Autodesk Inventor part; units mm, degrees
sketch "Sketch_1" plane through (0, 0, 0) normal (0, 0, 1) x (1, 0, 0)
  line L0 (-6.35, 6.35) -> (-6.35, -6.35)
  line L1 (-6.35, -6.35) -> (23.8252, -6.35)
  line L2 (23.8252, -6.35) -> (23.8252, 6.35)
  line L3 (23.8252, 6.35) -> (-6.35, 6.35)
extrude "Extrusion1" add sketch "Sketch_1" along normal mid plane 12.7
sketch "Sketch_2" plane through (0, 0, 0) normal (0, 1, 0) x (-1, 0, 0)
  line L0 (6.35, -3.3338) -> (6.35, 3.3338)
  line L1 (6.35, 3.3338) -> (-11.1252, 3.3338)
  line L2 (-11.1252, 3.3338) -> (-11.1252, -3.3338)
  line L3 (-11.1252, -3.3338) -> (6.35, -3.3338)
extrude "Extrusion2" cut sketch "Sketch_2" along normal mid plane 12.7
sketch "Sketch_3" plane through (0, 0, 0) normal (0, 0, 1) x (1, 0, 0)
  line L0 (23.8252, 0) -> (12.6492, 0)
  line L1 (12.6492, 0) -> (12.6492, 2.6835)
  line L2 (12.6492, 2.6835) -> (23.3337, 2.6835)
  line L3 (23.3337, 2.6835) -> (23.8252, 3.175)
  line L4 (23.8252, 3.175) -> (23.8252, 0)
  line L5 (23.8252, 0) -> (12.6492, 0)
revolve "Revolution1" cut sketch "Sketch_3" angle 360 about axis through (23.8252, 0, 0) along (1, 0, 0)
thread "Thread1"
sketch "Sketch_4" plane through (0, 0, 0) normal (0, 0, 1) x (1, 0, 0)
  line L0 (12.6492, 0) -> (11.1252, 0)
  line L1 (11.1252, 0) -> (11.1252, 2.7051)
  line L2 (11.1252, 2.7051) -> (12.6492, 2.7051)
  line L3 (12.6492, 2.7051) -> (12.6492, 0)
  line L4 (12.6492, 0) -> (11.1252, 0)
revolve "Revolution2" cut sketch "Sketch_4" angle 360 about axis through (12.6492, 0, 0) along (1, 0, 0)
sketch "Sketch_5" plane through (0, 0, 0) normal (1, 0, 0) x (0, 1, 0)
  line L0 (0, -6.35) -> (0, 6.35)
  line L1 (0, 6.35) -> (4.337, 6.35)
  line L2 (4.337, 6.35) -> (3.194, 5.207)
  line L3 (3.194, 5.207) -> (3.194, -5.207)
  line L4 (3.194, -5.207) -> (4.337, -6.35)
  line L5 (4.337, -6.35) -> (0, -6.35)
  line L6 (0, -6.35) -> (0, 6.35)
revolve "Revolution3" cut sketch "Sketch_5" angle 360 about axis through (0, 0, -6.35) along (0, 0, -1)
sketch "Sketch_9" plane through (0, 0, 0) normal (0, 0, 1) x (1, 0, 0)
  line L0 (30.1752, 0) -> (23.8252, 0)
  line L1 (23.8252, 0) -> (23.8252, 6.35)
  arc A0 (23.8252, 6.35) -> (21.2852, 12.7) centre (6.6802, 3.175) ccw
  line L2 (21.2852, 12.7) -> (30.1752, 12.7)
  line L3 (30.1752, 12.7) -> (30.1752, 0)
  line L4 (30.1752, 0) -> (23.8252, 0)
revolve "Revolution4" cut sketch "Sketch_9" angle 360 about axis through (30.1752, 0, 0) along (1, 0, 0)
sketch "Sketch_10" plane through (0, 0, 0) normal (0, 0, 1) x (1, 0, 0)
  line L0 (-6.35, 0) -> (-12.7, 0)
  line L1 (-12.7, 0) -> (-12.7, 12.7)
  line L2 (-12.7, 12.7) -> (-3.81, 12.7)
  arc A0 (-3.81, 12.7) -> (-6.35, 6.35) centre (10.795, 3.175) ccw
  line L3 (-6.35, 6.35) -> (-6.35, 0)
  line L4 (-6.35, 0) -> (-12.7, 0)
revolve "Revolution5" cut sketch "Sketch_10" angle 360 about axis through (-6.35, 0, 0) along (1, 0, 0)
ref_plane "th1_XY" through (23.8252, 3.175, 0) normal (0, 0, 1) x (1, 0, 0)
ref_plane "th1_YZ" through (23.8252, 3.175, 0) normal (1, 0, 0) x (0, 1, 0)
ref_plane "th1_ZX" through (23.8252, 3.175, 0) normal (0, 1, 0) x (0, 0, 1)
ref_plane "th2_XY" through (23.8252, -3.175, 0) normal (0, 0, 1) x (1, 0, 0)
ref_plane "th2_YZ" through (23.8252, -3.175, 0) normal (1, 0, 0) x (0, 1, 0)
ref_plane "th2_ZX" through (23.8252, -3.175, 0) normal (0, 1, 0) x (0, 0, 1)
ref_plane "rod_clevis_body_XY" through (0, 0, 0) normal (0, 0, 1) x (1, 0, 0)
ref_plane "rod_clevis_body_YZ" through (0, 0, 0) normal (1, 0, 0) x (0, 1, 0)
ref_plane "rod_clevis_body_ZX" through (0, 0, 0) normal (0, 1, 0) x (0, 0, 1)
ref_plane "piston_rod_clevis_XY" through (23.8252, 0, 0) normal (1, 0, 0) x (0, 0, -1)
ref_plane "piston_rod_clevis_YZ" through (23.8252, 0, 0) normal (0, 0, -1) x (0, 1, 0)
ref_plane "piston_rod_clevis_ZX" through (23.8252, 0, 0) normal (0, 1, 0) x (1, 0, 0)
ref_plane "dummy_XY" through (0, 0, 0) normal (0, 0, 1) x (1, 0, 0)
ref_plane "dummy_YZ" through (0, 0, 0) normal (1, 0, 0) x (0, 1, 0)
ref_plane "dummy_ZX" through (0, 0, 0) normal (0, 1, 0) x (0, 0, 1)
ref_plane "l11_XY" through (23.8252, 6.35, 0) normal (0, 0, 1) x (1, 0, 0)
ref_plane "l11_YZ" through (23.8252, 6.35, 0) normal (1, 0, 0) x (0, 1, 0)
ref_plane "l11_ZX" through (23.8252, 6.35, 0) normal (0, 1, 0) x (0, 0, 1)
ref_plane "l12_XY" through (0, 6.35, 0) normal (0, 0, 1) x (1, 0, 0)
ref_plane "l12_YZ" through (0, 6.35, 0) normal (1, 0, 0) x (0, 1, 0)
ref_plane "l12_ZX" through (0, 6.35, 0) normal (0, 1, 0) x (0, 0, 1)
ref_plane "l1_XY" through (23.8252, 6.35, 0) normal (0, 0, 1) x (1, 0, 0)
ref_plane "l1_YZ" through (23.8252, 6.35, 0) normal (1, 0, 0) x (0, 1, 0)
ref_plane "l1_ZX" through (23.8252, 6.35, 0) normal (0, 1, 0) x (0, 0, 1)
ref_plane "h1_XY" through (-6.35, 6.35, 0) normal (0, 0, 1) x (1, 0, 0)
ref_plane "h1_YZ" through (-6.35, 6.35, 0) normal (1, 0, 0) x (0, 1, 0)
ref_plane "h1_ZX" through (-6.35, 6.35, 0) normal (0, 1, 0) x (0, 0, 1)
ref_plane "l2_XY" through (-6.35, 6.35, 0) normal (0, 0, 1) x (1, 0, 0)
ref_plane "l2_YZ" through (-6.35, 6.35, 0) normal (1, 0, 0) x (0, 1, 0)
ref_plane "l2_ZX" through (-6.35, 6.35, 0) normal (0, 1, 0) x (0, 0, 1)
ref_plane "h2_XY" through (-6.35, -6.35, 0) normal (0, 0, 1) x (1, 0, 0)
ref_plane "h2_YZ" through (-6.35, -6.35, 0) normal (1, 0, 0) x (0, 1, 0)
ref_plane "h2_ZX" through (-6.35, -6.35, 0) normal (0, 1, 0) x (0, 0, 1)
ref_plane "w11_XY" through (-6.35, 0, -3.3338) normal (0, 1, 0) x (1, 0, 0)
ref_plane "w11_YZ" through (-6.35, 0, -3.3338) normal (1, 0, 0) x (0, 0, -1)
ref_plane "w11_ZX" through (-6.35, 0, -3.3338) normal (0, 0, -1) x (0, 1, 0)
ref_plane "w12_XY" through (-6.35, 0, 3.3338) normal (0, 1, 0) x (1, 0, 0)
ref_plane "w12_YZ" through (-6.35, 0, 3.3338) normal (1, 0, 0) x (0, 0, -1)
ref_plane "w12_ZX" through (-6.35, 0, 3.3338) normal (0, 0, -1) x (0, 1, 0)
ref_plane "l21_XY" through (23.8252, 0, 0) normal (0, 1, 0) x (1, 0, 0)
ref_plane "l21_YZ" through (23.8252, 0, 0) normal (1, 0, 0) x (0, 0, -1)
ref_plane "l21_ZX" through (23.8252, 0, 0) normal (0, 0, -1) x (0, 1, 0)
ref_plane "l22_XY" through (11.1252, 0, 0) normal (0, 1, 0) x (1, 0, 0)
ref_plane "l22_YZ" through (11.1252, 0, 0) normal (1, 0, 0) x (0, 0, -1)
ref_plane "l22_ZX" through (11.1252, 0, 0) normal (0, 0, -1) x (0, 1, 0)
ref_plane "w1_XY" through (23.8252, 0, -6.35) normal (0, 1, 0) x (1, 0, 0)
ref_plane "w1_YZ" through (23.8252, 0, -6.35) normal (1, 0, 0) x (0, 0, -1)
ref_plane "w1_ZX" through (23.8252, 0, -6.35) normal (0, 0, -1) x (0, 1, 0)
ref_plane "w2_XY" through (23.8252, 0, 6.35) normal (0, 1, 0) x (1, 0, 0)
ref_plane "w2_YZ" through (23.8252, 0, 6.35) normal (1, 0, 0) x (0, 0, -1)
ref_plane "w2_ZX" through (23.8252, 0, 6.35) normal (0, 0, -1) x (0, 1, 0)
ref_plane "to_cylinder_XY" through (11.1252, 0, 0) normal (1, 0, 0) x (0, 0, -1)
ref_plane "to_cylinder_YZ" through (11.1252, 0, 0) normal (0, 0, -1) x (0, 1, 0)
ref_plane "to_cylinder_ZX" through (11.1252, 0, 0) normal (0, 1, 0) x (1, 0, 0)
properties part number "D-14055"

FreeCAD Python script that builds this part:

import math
import FreeCAD as App
import Part
import Sketcher

V = App.Vector
Q = App.Units.Quantity


def add_polygon(sketch, points):
    """Adds a closed chain of lines whose ends are joined by coincident constraints."""
    first, n = sketch.GeometryCount, len(points)
    for a, b in zip(points, points[1:] + points[:1]):
        sketch.addGeometry(Part.LineSegment(App.Vector(*a, 0), App.Vector(*b, 0)), False)
    for i in range(n):
        sketch.addConstraint(Sketcher.Constraint("Coincident", first + i, 2, first + (i + 1) % n, 1))

doc = App.newDocument("Part")
body = doc.addObject("PartDesign::Body", "Body")

sketch1 = doc.addObject("Sketcher::SketchObject", "Sketch")
body.addObject(sketch1)
sketch1.AttachmentSupport = (doc.XY_Plane, [""])
sketch1.MapMode = "FlatFace"
add_polygon(sketch1, [(24, 6), (-6, 6), (-6, -6), (24, -6)])
sketch1.addConstraint(Sketcher.Constraint("Horizontal", 0))
sketch1.addConstraint(Sketcher.Constraint("Vertical", 1))
sketch1.addConstraint(Sketcher.Constraint("Horizontal", 2))
sketch1.addConstraint(Sketcher.Constraint("Vertical", 3))
sketch1.addConstraint(Sketcher.Constraint("DistanceY", 1, 2, 1, 1, Q("0.5 in")))
sketch1.addConstraint(Sketcher.Constraint("DistanceX", 0, 2, 0, 1, Q("1.188 in")))
sketch1.addConstraint(Sketcher.Constraint("DistanceX", 0, 2, -1, 1, Q("0.25 in")))
sketch1.addConstraint(Sketcher.Constraint("DistanceY", -1, 1, 0, 2, Q("0.25 in")))
pad1 = doc.addObject("PartDesign::Pad", "Pad")
body.addObject(pad1)
pad1.Profile = sketch1
pad1.Length = Q("0.5 in")
pad1.Midplane = True

sketch2 = doc.addObject("Sketcher::SketchObject", "Sketch001")
body.addObject(sketch2)
sketch2.AttachmentSupport = (doc.XZ_Plane, [""])
sketch2.MapMode = "FlatFace"
add_polygon(sketch2, [(11, -3), (-6, -3), (-6, 3), (11, 3)])
sketch2.addConstraint(Sketcher.Constraint("Horizontal", 0))
sketch2.addConstraint(Sketcher.Constraint("Vertical", 1))
sketch2.addConstraint(Sketcher.Constraint("Horizontal", 2))
sketch2.addConstraint(Sketcher.Constraint("Vertical", 3))
sketch2.addConstraint(Sketcher.Constraint("DistanceX", 0, 2, 0, 1, Q("0.688 in")))
sketch2.addConstraint(Sketcher.Constraint("DistanceX", 0, 2, -1, 1, Q("0.25 in")))
sketch2.addConstraint(Sketcher.Constraint("DistanceY", 1, 1, 1, 2, Q("0.2625 in")))
sketch2.addConstraint(Sketcher.Constraint("DistanceY", 0, 2, -1, 1, Q("3.3338 mm")))
pocket1 = doc.addObject("PartDesign::Pocket", "Pocket")
body.addObject(pocket1)
pocket1.Profile = sketch2
pocket1.Length = Q("0.5 in")
pocket1.Midplane = True

sketch3 = doc.addObject("Sketcher::SketchObject", "Sketch002")
body.addObject(sketch3)
sketch3.AttachmentSupport = (doc.XY_Plane, [""])
sketch3.MapMode = "FlatFace"
add_polygon(sketch3, [(12.6, 0), (23.8, 0), (23.8, 3.2), (23.3, 2.7), (12.6, 2.7)])
sketch3.addConstraint(Sketcher.Constraint("Horizontal", 0))
sketch3.addConstraint(Sketcher.Constraint("Vertical", 1))
sketch3.addConstraint(Sketcher.Constraint("Horizontal", 3))
sketch3.addConstraint(Sketcher.Constraint("Vertical", 4))
sketch3.addConstraint(Sketcher.Constraint("PointOnObject", 0, 2, -1))
sketch3.addConstraint(Sketcher.Constraint("Angle", 2, Q("-135 deg")))
sketch3.addConstraint(Sketcher.Constraint("DistanceX", 0, 1, 0, 2, Q("0.44 in")))
sketch3.addConstraint(Sketcher.Constraint("DistanceY", 1, 1, 1, 2, Q("0.125 in")))
sketch3.addConstraint(Sketcher.Constraint("DistanceX", -1, 1, 0, 2, Q("0.938 in")))
sketch3.addConstraint(Sketcher.Constraint("DistanceX", 3, 2, 3, 1, Q("10.6845 mm")))
groove = doc.addObject("PartDesign::Groove", "Groove")
body.addObject(groove)
groove.Profile = sketch3
groove.ReferenceAxis = (sketch3, ["H_Axis"])
groove.Angle = 360

sketch4 = doc.addObject("Sketcher::SketchObject", "Sketch003")
body.addObject(sketch4)
sketch4.AttachmentSupport = (doc.XY_Plane, [""])
sketch4.MapMode = "FlatFace"
add_polygon(sketch4, [(11.1, 0), (12.6, 0), (12.6, 2.7), (11.1, 2.7)])
sketch4.addConstraint(Sketcher.Constraint("Horizontal", 0))
sketch4.addConstraint(Sketcher.Constraint("Vertical", 1))
sketch4.addConstraint(Sketcher.Constraint("Horizontal", 2))
sketch4.addConstraint(Sketcher.Constraint("Vertical", 3))
sketch4.addConstraint(Sketcher.Constraint("PointOnObject", 0, 2, -1))
sketch4.addConstraint(Sketcher.Constraint("DistanceX", 0, 1, 0, 2, Q("0.06 in")))
sketch4.addConstraint(Sketcher.Constraint("DistanceY", 1, 1, 1, 2, Q("0.1065 in")))
sketch4.addConstraint(Sketcher.Constraint("DistanceX", -1, 1, 0, 2, Q("0.498 in")))
groove2 = doc.addObject("PartDesign::Groove", "Groove001")
body.addObject(groove2)
groove2.Profile = sketch4
groove2.ReferenceAxis = (sketch4, ["H_Axis"])
groove2.Angle = 360

sketch5 = doc.addObject("Sketcher::SketchObject", "Sketch004")
body.addObject(sketch5)
sketch5.AttachmentSupport = (doc.YZ_Plane, [""])
sketch5.MapMode = "FlatFace"
add_polygon(sketch5, [(0, 6.3), (0, -6.3), (4.3, -6.3), (3.2, -5.2), (3.2, 5.2), (4.3, 6.3)])
sketch5.addConstraint(Sketcher.Constraint("Vertical", 0))
sketch5.addConstraint(Sketcher.Constraint("Horizontal", 1))
sketch5.addConstraint(Sketcher.Constraint("Vertical", 3))
sketch5.addConstraint(Sketcher.Constraint("Horizontal", 5))
sketch5.addConstraint(Sketcher.Constraint("Symmetric", 0, 2, 5, 2, -1, 1))
sketch5.addConstraint(Sketcher.Constraint("Perpendicular", 2, 4))
sketch5.addConstraint(Sketcher.Constraint("Vertical", 1, 2, 4, 2))
sketch5.addConstraint(Sketcher.Constraint("Equal", 2, 4))
sketch5.addConstraint(Sketcher.Constraint("DistanceY", 0, 2, 0, 1, Q("0.5 in")))
sketch5.addConstraint(Sketcher.Constraint("DistanceY", 3, 1, 3, 2, Q("0.41 in")))
sketch5.addConstraint(Sketcher.Constraint("DistanceX", 1, 1, 1, 2, Q("4.337 mm")))
groove3 = doc.addObject("PartDesign::Groove", "Groove002")
body.addObject(groove3)
groove3.Profile = sketch5
groove3.ReferenceAxis = (sketch5, ["V_Axis"])
groove3.Angle = 360

sketch6 = doc.addObject("Sketcher::SketchObject", "Sketch005")
body.addObject(sketch6)
sketch6.AttachmentSupport = (doc.XY_Plane, [""])
sketch6.MapMode = "FlatFace"
sketch6.addGeometry(Part.LineSegment(V(24, 0, 0), V(30, 0, 0)), False)
sketch6.addGeometry(Part.LineSegment(V(30, 0, 0), V(30, 13, 0)), False)
sketch6.addGeometry(Part.LineSegment(V(30, 13, 0), V(21, 13, 0)), False)
sketch6.addGeometry(Part.ArcOfCircle(Part.Circle(V(7, 3, 0), V(0, 0, 1), 17), math.radians(10), math.radians(33)), False)
sketch6.addGeometry(Part.LineSegment(V(24, 6, 0), V(24, 0, 0)), False)
sketch6.addConstraint(Sketcher.Constraint("Coincident", 0, 2, 1, 1))
sketch6.addConstraint(Sketcher.Constraint("Coincident", 1, 2, 2, 1))
sketch6.addConstraint(Sketcher.Constraint("Coincident", 2, 2, 3, 2))
sketch6.addConstraint(Sketcher.Constraint("Coincident", 3, 1, 4, 1))
sketch6.addConstraint(Sketcher.Constraint("Coincident", 4, 2, 0, 1))
sketch6.addConstraint(Sketcher.Constraint("Horizontal", 0))
sketch6.addConstraint(Sketcher.Constraint("Vertical", 1))
sketch6.addConstraint(Sketcher.Constraint("Horizontal", 2))
sketch6.addConstraint(Sketcher.Constraint("Vertical", 4))
sketch6.addConstraint(Sketcher.Constraint("PointOnObject", 0, 2, -1))
sketch6.addConstraint(Sketcher.Constraint("Equal", 0, 4))
sketch6.addConstraint(Sketcher.Constraint("DistanceY", 1, 1, 1, 2, Q("0.5 in")))
sketch6.addConstraint(Sketcher.Constraint("DistanceX", 0, 1, 0, 2, Q("0.25 in")))
sketch6.addConstraint(Sketcher.Constraint("DistanceX", 2, 2, 2, 1, Q("0.35 in")))
sketch6.addConstraint(Sketcher.Constraint("Radius", 3, Q("17.4365 mm")))
sketch6.addConstraint(Sketcher.Constraint("DistanceX", -1, 1, 3, 3, Q("0.263 in")))
groove4 = doc.addObject("PartDesign::Groove", "Groove003")
body.addObject(groove4)
groove4.Profile = sketch6
groove4.ReferenceAxis = (sketch6, ["H_Axis"])
groove4.Angle = 360

sketch7 = doc.addObject("Sketcher::SketchObject", "Sketch006")
body.addObject(sketch7)
sketch7.AttachmentSupport = (doc.XY_Plane, [""])
sketch7.MapMode = "FlatFace"
sketch7.addGeometry(Part.LineSegment(V(-13, 0, 0), V(-6, 0, 0)), False)
sketch7.addGeometry(Part.LineSegment(V(-6, 0, 0), V(-6, 6, 0)), False)
sketch7.addGeometry(Part.ArcOfCircle(Part.Circle(V(11, 3, 0), V(0, 0, 1), 17), math.radians(147), math.radians(170)), False)
sketch7.addGeometry(Part.LineSegment(V(-4, 13, 0), V(-13, 13, 0)), False)
sketch7.addGeometry(Part.LineSegment(V(-13, 13, 0), V(-13, 0, 0)), False)
sketch7.addConstraint(Sketcher.Constraint("Coincident", 0, 2, 1, 1))
sketch7.addConstraint(Sketcher.Constraint("Coincident", 1, 2, 2, 2))
sketch7.addConstraint(Sketcher.Constraint("Coincident", 2, 1, 3, 1))
sketch7.addConstraint(Sketcher.Constraint("Coincident", 3, 2, 4, 1))
sketch7.addConstraint(Sketcher.Constraint("Coincident", 4, 2, 0, 1))
sketch7.addConstraint(Sketcher.Constraint("Horizontal", 0))
sketch7.addConstraint(Sketcher.Constraint("Vertical", 1))
sketch7.addConstraint(Sketcher.Constraint("Horizontal", 3))
sketch7.addConstraint(Sketcher.Constraint("Vertical", 4))
sketch7.addConstraint(Sketcher.Constraint("PointOnObject", 0, 2, -1))
sketch7.addConstraint(Sketcher.Constraint("Equal", 0, 1))
sketch7.addConstraint(Sketcher.Constraint("DistanceY", 4, 2, 4, 1, Q("0.5 in")))
sketch7.addConstraint(Sketcher.Constraint("DistanceX", 0, 1, 0, 2, Q("0.25 in")))
sketch7.addConstraint(Sketcher.Constraint("DistanceX", 3, 2, 3, 1, Q("0.35 in")))
sketch7.addConstraint(Sketcher.Constraint("DistanceX", 3, 2, -1, 1, Q("0.5 in")))
sketch7.addConstraint(Sketcher.Constraint("Radius", 2, Q("17.4365 mm")))
groove5 = doc.addObject("PartDesign::Groove", "Groove004")
body.addObject(groove5)
groove5.Profile = sketch7
groove5.ReferenceAxis = (sketch7, ["H_Axis"])
groove5.Angle = 360

doc.recompute()
